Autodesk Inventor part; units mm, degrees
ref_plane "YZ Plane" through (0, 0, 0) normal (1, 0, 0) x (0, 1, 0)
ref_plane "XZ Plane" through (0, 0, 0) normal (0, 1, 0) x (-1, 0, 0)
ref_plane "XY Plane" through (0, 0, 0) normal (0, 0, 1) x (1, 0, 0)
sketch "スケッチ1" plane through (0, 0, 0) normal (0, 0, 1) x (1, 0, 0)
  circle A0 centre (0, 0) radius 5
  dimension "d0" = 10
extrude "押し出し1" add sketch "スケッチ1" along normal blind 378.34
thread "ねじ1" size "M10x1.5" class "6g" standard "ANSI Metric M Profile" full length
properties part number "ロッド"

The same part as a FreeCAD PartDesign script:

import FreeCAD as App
import Part
import Sketcher
from FreeCAD import Vector

doc = App.newDocument("Part")
body = doc.addObject("PartDesign::Body", "Body")

# Sketch on XY plane
sketch1 = body.newObject("Sketcher::SketchObject", "Sketch")
sketch1.AttachmentSupport = (doc.getObject("XY_Plane"), [""])
sketch1.MapMode = "FlatFace"
sketch1.addGeometry(Part.Circle(Vector(0, 0, 0), Vector(0, 0, 1), 5), False)
sketch1.addConstraint([
    Sketcher.Constraint("Coincident", 0, 3, -1, 1),
    Sketcher.Constraint("Diameter", 0, 10.0),
])
pad1 = body.newObject("PartDesign::Pad", "Pad")
pad1.Profile = sketch1
pad1.Length = 378.34

doc.recompute()
